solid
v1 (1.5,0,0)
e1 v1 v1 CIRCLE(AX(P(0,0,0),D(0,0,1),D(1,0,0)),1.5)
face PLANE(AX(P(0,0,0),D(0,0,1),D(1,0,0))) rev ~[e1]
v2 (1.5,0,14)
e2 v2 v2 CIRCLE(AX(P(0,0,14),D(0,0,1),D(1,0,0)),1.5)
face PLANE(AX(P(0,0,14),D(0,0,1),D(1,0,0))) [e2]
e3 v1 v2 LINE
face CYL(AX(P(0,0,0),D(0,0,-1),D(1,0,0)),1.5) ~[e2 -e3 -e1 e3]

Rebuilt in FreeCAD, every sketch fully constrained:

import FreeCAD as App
import Part
import Sketcher

V = App.Vector
Q = App.Units.Quantity

doc = App.newDocument("Part")
params = doc.addObject("Spreadsheet::Sheet", "Params")
for row, (alias, value) in enumerate([
    ("sketch1_diameter", "3 mm"),
    ("pad1_length", "14 mm"),
], start=1):
    params.set(f"A{row}", alias)
    params.set(f"B{row}", "=" + value)
    params.setAlias(f"B{row}", alias)

body = doc.addObject("PartDesign::Body", "Body")

sketch1 = body.newObject("Sketcher::SketchObject", "Sketch")
sketch1.AttachmentSupport = (doc.getObject("XY_Plane"), [""])
sketch1.MapMode = "FlatFace"
sketch1.addGeometry(Part.Circle(V(0, 0, 0), V(0, 0, 1), 1.5), False)
sketch1.addConstraint([
    Sketcher.Constraint("Coincident", 0, 3, -1, 1),
    Sketcher.Constraint("Diameter", 0, Q("3 mm")),
])
sketch1.setExpression("Constraints[1]", "Params.sketch1_diameter")
pad1 = body.newObject("PartDesign::Pad", "Pad")
pad1.Profile = sketch1
pad1.setExpression("Length", "Params.pad1_length")

doc.recompute()
